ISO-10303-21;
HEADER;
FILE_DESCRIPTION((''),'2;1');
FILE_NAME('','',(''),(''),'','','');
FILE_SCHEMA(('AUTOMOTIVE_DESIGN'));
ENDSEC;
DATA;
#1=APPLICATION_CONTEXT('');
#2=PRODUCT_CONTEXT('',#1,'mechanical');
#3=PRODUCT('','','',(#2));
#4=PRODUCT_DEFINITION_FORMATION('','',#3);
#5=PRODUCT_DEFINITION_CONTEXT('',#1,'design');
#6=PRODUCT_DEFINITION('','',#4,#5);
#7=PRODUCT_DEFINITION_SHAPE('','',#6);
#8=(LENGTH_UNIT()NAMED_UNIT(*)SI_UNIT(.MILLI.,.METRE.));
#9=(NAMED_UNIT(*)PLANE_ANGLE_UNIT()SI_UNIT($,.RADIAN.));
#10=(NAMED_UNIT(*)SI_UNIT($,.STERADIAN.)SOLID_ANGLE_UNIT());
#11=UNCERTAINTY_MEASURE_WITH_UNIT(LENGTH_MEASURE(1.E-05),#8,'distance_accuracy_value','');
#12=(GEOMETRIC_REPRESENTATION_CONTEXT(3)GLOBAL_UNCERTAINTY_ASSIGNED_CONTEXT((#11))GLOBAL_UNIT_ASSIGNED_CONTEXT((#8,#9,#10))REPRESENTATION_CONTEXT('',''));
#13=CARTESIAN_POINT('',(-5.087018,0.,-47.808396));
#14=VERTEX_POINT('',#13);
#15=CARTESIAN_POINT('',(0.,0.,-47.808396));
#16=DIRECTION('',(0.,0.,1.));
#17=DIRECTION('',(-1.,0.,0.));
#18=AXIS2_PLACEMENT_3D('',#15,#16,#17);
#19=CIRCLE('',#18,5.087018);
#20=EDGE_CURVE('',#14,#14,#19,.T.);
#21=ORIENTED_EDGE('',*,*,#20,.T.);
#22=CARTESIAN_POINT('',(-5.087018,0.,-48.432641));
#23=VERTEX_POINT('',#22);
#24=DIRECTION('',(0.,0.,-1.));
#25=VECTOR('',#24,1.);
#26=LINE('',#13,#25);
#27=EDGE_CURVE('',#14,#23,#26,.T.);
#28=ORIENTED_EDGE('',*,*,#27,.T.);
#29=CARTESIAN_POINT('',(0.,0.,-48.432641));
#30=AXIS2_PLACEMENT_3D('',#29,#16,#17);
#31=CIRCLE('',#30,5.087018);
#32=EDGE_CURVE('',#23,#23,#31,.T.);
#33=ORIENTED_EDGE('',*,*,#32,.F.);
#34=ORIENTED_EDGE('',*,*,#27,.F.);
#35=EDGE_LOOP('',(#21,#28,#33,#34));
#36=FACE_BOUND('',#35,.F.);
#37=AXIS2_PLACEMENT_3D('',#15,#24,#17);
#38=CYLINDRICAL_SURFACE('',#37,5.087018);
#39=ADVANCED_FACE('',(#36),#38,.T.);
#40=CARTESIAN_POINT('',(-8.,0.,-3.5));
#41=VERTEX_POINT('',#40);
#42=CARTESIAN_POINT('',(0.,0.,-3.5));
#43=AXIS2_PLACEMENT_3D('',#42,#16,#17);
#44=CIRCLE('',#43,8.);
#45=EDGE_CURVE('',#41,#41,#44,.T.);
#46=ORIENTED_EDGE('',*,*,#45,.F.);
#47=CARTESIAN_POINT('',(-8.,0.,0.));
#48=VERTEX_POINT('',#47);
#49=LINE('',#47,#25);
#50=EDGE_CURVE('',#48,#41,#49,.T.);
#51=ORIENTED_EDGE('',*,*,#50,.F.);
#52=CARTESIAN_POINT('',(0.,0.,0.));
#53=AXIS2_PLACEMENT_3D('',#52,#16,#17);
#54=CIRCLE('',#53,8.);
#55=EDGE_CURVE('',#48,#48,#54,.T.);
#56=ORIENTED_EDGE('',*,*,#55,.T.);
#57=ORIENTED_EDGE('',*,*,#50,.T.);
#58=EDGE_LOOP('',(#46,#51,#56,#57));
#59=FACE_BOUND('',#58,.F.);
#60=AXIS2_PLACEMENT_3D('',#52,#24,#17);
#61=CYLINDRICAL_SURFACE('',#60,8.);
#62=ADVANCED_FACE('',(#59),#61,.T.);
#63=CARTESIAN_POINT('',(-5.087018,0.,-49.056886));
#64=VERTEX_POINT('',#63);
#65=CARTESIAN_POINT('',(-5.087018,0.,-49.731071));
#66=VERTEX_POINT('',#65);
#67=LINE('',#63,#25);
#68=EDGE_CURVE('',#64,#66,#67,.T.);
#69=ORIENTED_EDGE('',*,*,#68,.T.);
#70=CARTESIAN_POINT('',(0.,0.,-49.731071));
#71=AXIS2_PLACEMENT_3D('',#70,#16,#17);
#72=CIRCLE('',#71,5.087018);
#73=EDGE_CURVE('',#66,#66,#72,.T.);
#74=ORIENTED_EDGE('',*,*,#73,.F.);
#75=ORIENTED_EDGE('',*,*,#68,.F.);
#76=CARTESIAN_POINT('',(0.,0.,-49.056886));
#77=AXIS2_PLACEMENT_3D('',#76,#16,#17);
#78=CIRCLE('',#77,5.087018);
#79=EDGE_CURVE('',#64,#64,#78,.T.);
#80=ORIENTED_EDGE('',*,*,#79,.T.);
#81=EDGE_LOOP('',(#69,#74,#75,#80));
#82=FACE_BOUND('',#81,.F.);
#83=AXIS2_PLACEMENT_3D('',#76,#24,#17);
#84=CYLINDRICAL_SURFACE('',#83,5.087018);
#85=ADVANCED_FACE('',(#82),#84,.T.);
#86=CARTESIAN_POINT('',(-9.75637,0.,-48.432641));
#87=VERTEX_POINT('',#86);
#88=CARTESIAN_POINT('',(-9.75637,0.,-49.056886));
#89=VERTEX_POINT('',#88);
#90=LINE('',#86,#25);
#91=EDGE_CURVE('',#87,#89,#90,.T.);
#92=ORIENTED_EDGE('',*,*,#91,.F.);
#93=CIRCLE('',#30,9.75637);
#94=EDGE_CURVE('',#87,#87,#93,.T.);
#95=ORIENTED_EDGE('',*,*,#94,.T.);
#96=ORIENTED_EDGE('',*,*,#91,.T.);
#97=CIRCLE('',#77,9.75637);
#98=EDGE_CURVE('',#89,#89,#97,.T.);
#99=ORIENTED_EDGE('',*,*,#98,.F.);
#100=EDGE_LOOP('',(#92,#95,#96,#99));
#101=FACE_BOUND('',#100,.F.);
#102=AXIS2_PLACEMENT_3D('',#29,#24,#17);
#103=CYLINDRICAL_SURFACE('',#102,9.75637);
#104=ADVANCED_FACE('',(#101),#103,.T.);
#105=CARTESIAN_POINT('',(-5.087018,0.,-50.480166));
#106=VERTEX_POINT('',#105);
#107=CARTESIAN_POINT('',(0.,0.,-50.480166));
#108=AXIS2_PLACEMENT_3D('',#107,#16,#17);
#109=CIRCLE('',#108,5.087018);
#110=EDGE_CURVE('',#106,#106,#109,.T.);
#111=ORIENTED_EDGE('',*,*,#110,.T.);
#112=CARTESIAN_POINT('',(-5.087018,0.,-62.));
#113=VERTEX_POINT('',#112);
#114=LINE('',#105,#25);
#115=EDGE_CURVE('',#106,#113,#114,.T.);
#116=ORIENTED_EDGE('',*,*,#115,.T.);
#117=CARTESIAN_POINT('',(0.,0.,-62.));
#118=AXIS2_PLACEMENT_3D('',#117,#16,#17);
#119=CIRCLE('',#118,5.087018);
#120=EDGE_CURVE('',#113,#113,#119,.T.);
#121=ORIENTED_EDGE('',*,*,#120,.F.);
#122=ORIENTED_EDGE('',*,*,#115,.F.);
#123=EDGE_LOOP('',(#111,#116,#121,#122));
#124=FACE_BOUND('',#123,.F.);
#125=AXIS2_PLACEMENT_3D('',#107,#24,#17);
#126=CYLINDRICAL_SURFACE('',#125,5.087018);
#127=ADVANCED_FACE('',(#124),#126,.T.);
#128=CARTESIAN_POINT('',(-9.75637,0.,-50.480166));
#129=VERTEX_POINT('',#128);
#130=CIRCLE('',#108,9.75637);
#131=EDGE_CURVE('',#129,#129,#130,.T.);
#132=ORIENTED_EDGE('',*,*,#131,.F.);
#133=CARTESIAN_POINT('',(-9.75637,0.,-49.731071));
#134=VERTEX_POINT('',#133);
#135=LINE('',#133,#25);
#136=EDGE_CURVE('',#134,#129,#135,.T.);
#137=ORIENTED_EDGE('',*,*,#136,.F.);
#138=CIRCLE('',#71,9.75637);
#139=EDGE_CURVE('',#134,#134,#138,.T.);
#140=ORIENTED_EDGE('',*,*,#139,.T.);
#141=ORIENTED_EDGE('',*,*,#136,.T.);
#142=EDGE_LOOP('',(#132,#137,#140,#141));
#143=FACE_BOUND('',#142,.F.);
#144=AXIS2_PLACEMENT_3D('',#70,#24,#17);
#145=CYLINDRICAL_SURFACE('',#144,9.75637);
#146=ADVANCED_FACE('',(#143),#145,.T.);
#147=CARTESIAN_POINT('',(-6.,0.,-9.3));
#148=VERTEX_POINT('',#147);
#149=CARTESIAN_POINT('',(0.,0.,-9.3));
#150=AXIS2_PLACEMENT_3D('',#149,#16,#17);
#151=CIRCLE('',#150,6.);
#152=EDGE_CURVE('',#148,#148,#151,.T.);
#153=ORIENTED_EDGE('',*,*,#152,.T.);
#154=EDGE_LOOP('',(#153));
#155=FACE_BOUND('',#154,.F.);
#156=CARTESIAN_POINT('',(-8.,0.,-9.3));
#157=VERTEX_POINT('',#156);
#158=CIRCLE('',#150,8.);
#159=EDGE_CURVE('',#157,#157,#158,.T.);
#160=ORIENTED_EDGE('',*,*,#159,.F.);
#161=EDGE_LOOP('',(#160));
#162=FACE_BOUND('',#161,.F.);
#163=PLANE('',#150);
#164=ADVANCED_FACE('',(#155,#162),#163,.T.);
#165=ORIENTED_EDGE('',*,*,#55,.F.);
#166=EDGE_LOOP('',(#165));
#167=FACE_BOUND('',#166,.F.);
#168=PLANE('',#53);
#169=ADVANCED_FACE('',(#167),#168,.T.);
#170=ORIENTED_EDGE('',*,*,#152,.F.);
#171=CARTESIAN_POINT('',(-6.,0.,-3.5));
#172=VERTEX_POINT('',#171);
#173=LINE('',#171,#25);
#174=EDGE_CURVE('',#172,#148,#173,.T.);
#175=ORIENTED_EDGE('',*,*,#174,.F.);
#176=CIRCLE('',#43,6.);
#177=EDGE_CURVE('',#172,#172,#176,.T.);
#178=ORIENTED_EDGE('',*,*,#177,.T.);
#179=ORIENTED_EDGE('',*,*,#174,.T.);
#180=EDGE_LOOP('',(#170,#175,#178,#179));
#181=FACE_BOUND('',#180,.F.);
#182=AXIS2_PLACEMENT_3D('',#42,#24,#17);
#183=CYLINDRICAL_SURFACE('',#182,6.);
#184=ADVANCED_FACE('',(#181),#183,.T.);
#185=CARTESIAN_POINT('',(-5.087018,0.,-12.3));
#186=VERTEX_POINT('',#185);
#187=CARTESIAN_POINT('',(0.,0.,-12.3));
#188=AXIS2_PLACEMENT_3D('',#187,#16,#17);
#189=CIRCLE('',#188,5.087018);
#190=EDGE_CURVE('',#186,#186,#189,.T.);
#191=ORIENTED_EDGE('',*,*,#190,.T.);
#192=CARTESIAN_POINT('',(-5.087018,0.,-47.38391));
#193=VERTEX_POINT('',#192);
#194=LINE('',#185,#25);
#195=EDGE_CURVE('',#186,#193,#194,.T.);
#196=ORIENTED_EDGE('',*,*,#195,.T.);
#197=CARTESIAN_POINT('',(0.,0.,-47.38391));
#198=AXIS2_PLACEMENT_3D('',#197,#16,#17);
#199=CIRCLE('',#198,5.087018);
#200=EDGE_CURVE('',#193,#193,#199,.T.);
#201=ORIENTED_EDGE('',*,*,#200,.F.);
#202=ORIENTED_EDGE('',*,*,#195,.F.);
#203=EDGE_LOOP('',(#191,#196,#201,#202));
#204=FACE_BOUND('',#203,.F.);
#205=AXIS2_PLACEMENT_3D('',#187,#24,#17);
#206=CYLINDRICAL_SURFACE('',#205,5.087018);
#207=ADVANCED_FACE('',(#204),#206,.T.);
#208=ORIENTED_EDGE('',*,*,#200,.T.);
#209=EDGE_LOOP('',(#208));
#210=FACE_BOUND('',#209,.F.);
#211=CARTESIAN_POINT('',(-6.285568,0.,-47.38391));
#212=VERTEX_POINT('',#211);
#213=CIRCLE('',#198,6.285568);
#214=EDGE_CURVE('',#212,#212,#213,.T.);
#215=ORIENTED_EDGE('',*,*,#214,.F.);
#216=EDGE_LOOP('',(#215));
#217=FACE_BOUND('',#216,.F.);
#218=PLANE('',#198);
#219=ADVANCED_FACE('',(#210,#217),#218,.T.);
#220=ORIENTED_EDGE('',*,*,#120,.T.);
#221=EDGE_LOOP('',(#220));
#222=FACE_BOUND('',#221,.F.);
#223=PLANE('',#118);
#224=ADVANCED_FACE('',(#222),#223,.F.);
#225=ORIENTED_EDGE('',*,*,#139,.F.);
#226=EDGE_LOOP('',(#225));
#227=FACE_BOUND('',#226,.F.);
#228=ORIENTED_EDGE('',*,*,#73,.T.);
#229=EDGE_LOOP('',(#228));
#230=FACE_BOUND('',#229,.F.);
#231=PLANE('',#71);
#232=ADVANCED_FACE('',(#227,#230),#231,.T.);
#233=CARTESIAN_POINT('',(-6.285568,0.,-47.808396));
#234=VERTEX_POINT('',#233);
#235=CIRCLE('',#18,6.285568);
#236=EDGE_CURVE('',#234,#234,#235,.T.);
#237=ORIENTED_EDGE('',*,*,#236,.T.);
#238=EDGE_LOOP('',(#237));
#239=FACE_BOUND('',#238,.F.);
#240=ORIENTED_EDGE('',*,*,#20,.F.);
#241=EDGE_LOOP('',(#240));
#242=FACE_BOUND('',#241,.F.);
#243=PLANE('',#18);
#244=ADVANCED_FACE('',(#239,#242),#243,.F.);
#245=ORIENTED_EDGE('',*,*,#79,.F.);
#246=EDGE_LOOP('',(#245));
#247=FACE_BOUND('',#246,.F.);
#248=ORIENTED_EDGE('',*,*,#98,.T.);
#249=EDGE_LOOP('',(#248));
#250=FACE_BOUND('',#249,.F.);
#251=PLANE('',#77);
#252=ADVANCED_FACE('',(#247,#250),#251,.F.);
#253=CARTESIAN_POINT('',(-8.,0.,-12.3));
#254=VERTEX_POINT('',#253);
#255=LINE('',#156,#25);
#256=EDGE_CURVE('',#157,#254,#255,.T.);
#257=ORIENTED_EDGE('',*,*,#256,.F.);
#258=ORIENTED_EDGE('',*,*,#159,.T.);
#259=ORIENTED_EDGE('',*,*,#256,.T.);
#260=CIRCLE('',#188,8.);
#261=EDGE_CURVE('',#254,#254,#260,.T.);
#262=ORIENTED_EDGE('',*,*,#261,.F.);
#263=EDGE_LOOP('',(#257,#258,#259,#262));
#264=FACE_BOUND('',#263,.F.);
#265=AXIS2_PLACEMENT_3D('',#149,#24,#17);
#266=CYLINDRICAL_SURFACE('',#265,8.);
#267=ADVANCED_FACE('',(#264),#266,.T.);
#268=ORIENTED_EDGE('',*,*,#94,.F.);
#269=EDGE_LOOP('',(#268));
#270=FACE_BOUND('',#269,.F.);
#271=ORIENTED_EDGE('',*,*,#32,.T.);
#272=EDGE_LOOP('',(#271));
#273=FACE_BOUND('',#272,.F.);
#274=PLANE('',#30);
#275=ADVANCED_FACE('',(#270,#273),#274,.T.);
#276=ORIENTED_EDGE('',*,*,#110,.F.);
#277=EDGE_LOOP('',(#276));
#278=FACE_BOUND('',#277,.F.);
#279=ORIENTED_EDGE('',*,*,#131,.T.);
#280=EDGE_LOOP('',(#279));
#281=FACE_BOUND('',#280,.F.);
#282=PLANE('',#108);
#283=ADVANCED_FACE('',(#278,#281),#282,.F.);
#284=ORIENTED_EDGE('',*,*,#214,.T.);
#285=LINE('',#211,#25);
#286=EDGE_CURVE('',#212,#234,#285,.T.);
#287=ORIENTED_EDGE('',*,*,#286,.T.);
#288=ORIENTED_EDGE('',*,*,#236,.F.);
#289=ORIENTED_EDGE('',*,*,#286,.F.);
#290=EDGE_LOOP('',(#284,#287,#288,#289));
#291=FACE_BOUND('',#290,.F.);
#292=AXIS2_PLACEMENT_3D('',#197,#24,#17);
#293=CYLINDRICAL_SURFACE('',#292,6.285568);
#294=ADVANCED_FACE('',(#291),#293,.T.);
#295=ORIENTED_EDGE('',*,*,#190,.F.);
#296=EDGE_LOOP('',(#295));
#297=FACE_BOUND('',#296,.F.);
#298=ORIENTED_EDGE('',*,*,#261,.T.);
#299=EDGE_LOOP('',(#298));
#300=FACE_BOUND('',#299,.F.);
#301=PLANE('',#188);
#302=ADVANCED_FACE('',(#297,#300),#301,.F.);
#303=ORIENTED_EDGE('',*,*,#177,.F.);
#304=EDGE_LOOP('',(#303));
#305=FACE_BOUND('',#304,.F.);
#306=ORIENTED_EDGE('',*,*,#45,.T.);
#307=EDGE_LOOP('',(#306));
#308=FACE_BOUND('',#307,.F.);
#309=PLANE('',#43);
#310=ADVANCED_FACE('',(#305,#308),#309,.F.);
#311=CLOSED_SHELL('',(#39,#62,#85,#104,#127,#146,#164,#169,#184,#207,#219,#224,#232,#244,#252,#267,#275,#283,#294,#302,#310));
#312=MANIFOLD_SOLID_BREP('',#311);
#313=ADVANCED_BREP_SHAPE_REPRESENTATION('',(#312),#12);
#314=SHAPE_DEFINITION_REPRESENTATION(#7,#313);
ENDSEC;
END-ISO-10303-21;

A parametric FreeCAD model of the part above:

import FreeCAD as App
import Part
import Sketcher
from FreeCAD import Vector
Q = App.Units.Quantity


def add_polygon(sketch, points):
    """Adds a closed chain of lines whose ends are joined by coincident constraints."""
    first, n = sketch.GeometryCount, len(points)
    for a, b in zip(points, points[1:] + points[:1]):
        sketch.addGeometry(Part.LineSegment(App.Vector(*a, 0), App.Vector(*b, 0)), False)
    for i in range(n):
        sketch.addConstraint(Sketcher.Constraint("Coincident", first + i, 2, first + (i + 1) % n, 1))

doc = App.newDocument("Part")
body = doc.addObject("PartDesign::Body", "Body")

sketch1 = doc.addObject("Sketcher::SketchObject", "Sketch")
body.addObject(sketch1)
sketch1.AttachmentSupport = (doc.XZ_Plane, [""])
sketch1.MapMode = "FlatFace"
add_polygon(sketch1, [(0, -62), (0, 0), (-8, 0), (-8, -3.5), (-6, -3.5), (-6, -9.3), (-8, -9.3), (-8, -12.3), (-5.09, -12.3), (-5.09, -47.38), (-6.29, -47.38), (-6.29, -47.81), (-5.09, -47.81), (-5.09, -48.43), (-9.76, -48.43), (-9.76, -49.06), (-5.09, -49.06), (-5.09, -49.73), (-9.76, -49.73), (-9.76, -50.48), (-5.09, -50.48), (-5.09, -62)])
sketch1.addConstraint([
    Sketcher.Constraint("Vertical", 0),
    Sketcher.Constraint("Horizontal", 1),
    Sketcher.Constraint("Vertical", 2),
    Sketcher.Constraint("Horizontal", 3),
    Sketcher.Constraint("Vertical", 4),
    Sketcher.Constraint("Horizontal", 5),
    Sketcher.Constraint("Vertical", 6),
    Sketcher.Constraint("Horizontal", 7),
    Sketcher.Constraint("Vertical", 8),
    Sketcher.Constraint("Horizontal", 9),
    Sketcher.Constraint("Vertical", 10),
    Sketcher.Constraint("Horizontal", 11),
    Sketcher.Constraint("Vertical", 12),
    Sketcher.Constraint("Horizontal", 13),
    Sketcher.Constraint("Vertical", 14),
    Sketcher.Constraint("Horizontal", 15),
    Sketcher.Constraint("Vertical", 16),
    Sketcher.Constraint("Horizontal", 17),
    Sketcher.Constraint("Vertical", 18),
    Sketcher.Constraint("Horizontal", 19),
    Sketcher.Constraint("Vertical", 20),
    Sketcher.Constraint("Horizontal", 21),
    Sketcher.Constraint("Coincident", 0, 2, -1, 1),
    Sketcher.Constraint("Vertical", 2, 2, 5, 2),
    Sketcher.Constraint("Vertical", 8, 2, 11, 2),
    Sketcher.Constraint("Vertical", 12, 2, 15, 2),
    Sketcher.Constraint("Vertical", 14, 2, 17, 2),
    Sketcher.Constraint("Vertical", 16, 2, 19, 2),
    Sketcher.Constraint("Equal", 12, 14),
    Sketcher.Constraint("DistanceX", 1, 2, 1, 1, Q("8 mm")),
    Sketcher.Constraint("DistanceX", 3, 1, 3, 2, Q("2 mm")),
    Sketcher.Constraint("DistanceY", 0, 1, 0, 2, Q("62 mm")),
    Sketcher.Constraint("DistanceY", 6, 2, 6, 1, Q("3 mm")),
    Sketcher.Constraint("DistanceY", 2, 2, 2, 1, Q("3.5 mm")),
    Sketcher.Constraint("DistanceY", 4, 2, 4, 1, Q("5.8 mm")),
    Sketcher.Constraint("DistanceX", 9, 2, 9, 1, Q("1.19855 mm")),
    Sketcher.Constraint("DistanceY", 8, 2, 8, 1, Q("35.08391 mm")),
    Sketcher.Constraint("DistanceX", 7, 1, 7, 2, Q("2.912982 mm")),
    Sketcher.Constraint("DistanceX", 13, 2, 13, 1, Q("4.669352 mm")),
    Sketcher.Constraint("DistanceY", 10, 2, 10, 1, Q("0.424486 mm")),
    Sketcher.Constraint("DistanceY", 12, 2, 12, 1, Q("0.624245 mm")),
    Sketcher.Constraint("DistanceY", 16, 2, 16, 1, Q("0.674185 mm")),
    Sketcher.Constraint("DistanceY", 18, 2, 18, 1, Q("0.749095 mm")),
])
revolution = doc.addObject("PartDesign::Revolution", "Revolution")
body.addObject(revolution)
revolution.Profile = sketch1
revolution.ReferenceAxis = (sketch1, ["V_Axis"])
revolution.Angle = 360

doc.recompute()
